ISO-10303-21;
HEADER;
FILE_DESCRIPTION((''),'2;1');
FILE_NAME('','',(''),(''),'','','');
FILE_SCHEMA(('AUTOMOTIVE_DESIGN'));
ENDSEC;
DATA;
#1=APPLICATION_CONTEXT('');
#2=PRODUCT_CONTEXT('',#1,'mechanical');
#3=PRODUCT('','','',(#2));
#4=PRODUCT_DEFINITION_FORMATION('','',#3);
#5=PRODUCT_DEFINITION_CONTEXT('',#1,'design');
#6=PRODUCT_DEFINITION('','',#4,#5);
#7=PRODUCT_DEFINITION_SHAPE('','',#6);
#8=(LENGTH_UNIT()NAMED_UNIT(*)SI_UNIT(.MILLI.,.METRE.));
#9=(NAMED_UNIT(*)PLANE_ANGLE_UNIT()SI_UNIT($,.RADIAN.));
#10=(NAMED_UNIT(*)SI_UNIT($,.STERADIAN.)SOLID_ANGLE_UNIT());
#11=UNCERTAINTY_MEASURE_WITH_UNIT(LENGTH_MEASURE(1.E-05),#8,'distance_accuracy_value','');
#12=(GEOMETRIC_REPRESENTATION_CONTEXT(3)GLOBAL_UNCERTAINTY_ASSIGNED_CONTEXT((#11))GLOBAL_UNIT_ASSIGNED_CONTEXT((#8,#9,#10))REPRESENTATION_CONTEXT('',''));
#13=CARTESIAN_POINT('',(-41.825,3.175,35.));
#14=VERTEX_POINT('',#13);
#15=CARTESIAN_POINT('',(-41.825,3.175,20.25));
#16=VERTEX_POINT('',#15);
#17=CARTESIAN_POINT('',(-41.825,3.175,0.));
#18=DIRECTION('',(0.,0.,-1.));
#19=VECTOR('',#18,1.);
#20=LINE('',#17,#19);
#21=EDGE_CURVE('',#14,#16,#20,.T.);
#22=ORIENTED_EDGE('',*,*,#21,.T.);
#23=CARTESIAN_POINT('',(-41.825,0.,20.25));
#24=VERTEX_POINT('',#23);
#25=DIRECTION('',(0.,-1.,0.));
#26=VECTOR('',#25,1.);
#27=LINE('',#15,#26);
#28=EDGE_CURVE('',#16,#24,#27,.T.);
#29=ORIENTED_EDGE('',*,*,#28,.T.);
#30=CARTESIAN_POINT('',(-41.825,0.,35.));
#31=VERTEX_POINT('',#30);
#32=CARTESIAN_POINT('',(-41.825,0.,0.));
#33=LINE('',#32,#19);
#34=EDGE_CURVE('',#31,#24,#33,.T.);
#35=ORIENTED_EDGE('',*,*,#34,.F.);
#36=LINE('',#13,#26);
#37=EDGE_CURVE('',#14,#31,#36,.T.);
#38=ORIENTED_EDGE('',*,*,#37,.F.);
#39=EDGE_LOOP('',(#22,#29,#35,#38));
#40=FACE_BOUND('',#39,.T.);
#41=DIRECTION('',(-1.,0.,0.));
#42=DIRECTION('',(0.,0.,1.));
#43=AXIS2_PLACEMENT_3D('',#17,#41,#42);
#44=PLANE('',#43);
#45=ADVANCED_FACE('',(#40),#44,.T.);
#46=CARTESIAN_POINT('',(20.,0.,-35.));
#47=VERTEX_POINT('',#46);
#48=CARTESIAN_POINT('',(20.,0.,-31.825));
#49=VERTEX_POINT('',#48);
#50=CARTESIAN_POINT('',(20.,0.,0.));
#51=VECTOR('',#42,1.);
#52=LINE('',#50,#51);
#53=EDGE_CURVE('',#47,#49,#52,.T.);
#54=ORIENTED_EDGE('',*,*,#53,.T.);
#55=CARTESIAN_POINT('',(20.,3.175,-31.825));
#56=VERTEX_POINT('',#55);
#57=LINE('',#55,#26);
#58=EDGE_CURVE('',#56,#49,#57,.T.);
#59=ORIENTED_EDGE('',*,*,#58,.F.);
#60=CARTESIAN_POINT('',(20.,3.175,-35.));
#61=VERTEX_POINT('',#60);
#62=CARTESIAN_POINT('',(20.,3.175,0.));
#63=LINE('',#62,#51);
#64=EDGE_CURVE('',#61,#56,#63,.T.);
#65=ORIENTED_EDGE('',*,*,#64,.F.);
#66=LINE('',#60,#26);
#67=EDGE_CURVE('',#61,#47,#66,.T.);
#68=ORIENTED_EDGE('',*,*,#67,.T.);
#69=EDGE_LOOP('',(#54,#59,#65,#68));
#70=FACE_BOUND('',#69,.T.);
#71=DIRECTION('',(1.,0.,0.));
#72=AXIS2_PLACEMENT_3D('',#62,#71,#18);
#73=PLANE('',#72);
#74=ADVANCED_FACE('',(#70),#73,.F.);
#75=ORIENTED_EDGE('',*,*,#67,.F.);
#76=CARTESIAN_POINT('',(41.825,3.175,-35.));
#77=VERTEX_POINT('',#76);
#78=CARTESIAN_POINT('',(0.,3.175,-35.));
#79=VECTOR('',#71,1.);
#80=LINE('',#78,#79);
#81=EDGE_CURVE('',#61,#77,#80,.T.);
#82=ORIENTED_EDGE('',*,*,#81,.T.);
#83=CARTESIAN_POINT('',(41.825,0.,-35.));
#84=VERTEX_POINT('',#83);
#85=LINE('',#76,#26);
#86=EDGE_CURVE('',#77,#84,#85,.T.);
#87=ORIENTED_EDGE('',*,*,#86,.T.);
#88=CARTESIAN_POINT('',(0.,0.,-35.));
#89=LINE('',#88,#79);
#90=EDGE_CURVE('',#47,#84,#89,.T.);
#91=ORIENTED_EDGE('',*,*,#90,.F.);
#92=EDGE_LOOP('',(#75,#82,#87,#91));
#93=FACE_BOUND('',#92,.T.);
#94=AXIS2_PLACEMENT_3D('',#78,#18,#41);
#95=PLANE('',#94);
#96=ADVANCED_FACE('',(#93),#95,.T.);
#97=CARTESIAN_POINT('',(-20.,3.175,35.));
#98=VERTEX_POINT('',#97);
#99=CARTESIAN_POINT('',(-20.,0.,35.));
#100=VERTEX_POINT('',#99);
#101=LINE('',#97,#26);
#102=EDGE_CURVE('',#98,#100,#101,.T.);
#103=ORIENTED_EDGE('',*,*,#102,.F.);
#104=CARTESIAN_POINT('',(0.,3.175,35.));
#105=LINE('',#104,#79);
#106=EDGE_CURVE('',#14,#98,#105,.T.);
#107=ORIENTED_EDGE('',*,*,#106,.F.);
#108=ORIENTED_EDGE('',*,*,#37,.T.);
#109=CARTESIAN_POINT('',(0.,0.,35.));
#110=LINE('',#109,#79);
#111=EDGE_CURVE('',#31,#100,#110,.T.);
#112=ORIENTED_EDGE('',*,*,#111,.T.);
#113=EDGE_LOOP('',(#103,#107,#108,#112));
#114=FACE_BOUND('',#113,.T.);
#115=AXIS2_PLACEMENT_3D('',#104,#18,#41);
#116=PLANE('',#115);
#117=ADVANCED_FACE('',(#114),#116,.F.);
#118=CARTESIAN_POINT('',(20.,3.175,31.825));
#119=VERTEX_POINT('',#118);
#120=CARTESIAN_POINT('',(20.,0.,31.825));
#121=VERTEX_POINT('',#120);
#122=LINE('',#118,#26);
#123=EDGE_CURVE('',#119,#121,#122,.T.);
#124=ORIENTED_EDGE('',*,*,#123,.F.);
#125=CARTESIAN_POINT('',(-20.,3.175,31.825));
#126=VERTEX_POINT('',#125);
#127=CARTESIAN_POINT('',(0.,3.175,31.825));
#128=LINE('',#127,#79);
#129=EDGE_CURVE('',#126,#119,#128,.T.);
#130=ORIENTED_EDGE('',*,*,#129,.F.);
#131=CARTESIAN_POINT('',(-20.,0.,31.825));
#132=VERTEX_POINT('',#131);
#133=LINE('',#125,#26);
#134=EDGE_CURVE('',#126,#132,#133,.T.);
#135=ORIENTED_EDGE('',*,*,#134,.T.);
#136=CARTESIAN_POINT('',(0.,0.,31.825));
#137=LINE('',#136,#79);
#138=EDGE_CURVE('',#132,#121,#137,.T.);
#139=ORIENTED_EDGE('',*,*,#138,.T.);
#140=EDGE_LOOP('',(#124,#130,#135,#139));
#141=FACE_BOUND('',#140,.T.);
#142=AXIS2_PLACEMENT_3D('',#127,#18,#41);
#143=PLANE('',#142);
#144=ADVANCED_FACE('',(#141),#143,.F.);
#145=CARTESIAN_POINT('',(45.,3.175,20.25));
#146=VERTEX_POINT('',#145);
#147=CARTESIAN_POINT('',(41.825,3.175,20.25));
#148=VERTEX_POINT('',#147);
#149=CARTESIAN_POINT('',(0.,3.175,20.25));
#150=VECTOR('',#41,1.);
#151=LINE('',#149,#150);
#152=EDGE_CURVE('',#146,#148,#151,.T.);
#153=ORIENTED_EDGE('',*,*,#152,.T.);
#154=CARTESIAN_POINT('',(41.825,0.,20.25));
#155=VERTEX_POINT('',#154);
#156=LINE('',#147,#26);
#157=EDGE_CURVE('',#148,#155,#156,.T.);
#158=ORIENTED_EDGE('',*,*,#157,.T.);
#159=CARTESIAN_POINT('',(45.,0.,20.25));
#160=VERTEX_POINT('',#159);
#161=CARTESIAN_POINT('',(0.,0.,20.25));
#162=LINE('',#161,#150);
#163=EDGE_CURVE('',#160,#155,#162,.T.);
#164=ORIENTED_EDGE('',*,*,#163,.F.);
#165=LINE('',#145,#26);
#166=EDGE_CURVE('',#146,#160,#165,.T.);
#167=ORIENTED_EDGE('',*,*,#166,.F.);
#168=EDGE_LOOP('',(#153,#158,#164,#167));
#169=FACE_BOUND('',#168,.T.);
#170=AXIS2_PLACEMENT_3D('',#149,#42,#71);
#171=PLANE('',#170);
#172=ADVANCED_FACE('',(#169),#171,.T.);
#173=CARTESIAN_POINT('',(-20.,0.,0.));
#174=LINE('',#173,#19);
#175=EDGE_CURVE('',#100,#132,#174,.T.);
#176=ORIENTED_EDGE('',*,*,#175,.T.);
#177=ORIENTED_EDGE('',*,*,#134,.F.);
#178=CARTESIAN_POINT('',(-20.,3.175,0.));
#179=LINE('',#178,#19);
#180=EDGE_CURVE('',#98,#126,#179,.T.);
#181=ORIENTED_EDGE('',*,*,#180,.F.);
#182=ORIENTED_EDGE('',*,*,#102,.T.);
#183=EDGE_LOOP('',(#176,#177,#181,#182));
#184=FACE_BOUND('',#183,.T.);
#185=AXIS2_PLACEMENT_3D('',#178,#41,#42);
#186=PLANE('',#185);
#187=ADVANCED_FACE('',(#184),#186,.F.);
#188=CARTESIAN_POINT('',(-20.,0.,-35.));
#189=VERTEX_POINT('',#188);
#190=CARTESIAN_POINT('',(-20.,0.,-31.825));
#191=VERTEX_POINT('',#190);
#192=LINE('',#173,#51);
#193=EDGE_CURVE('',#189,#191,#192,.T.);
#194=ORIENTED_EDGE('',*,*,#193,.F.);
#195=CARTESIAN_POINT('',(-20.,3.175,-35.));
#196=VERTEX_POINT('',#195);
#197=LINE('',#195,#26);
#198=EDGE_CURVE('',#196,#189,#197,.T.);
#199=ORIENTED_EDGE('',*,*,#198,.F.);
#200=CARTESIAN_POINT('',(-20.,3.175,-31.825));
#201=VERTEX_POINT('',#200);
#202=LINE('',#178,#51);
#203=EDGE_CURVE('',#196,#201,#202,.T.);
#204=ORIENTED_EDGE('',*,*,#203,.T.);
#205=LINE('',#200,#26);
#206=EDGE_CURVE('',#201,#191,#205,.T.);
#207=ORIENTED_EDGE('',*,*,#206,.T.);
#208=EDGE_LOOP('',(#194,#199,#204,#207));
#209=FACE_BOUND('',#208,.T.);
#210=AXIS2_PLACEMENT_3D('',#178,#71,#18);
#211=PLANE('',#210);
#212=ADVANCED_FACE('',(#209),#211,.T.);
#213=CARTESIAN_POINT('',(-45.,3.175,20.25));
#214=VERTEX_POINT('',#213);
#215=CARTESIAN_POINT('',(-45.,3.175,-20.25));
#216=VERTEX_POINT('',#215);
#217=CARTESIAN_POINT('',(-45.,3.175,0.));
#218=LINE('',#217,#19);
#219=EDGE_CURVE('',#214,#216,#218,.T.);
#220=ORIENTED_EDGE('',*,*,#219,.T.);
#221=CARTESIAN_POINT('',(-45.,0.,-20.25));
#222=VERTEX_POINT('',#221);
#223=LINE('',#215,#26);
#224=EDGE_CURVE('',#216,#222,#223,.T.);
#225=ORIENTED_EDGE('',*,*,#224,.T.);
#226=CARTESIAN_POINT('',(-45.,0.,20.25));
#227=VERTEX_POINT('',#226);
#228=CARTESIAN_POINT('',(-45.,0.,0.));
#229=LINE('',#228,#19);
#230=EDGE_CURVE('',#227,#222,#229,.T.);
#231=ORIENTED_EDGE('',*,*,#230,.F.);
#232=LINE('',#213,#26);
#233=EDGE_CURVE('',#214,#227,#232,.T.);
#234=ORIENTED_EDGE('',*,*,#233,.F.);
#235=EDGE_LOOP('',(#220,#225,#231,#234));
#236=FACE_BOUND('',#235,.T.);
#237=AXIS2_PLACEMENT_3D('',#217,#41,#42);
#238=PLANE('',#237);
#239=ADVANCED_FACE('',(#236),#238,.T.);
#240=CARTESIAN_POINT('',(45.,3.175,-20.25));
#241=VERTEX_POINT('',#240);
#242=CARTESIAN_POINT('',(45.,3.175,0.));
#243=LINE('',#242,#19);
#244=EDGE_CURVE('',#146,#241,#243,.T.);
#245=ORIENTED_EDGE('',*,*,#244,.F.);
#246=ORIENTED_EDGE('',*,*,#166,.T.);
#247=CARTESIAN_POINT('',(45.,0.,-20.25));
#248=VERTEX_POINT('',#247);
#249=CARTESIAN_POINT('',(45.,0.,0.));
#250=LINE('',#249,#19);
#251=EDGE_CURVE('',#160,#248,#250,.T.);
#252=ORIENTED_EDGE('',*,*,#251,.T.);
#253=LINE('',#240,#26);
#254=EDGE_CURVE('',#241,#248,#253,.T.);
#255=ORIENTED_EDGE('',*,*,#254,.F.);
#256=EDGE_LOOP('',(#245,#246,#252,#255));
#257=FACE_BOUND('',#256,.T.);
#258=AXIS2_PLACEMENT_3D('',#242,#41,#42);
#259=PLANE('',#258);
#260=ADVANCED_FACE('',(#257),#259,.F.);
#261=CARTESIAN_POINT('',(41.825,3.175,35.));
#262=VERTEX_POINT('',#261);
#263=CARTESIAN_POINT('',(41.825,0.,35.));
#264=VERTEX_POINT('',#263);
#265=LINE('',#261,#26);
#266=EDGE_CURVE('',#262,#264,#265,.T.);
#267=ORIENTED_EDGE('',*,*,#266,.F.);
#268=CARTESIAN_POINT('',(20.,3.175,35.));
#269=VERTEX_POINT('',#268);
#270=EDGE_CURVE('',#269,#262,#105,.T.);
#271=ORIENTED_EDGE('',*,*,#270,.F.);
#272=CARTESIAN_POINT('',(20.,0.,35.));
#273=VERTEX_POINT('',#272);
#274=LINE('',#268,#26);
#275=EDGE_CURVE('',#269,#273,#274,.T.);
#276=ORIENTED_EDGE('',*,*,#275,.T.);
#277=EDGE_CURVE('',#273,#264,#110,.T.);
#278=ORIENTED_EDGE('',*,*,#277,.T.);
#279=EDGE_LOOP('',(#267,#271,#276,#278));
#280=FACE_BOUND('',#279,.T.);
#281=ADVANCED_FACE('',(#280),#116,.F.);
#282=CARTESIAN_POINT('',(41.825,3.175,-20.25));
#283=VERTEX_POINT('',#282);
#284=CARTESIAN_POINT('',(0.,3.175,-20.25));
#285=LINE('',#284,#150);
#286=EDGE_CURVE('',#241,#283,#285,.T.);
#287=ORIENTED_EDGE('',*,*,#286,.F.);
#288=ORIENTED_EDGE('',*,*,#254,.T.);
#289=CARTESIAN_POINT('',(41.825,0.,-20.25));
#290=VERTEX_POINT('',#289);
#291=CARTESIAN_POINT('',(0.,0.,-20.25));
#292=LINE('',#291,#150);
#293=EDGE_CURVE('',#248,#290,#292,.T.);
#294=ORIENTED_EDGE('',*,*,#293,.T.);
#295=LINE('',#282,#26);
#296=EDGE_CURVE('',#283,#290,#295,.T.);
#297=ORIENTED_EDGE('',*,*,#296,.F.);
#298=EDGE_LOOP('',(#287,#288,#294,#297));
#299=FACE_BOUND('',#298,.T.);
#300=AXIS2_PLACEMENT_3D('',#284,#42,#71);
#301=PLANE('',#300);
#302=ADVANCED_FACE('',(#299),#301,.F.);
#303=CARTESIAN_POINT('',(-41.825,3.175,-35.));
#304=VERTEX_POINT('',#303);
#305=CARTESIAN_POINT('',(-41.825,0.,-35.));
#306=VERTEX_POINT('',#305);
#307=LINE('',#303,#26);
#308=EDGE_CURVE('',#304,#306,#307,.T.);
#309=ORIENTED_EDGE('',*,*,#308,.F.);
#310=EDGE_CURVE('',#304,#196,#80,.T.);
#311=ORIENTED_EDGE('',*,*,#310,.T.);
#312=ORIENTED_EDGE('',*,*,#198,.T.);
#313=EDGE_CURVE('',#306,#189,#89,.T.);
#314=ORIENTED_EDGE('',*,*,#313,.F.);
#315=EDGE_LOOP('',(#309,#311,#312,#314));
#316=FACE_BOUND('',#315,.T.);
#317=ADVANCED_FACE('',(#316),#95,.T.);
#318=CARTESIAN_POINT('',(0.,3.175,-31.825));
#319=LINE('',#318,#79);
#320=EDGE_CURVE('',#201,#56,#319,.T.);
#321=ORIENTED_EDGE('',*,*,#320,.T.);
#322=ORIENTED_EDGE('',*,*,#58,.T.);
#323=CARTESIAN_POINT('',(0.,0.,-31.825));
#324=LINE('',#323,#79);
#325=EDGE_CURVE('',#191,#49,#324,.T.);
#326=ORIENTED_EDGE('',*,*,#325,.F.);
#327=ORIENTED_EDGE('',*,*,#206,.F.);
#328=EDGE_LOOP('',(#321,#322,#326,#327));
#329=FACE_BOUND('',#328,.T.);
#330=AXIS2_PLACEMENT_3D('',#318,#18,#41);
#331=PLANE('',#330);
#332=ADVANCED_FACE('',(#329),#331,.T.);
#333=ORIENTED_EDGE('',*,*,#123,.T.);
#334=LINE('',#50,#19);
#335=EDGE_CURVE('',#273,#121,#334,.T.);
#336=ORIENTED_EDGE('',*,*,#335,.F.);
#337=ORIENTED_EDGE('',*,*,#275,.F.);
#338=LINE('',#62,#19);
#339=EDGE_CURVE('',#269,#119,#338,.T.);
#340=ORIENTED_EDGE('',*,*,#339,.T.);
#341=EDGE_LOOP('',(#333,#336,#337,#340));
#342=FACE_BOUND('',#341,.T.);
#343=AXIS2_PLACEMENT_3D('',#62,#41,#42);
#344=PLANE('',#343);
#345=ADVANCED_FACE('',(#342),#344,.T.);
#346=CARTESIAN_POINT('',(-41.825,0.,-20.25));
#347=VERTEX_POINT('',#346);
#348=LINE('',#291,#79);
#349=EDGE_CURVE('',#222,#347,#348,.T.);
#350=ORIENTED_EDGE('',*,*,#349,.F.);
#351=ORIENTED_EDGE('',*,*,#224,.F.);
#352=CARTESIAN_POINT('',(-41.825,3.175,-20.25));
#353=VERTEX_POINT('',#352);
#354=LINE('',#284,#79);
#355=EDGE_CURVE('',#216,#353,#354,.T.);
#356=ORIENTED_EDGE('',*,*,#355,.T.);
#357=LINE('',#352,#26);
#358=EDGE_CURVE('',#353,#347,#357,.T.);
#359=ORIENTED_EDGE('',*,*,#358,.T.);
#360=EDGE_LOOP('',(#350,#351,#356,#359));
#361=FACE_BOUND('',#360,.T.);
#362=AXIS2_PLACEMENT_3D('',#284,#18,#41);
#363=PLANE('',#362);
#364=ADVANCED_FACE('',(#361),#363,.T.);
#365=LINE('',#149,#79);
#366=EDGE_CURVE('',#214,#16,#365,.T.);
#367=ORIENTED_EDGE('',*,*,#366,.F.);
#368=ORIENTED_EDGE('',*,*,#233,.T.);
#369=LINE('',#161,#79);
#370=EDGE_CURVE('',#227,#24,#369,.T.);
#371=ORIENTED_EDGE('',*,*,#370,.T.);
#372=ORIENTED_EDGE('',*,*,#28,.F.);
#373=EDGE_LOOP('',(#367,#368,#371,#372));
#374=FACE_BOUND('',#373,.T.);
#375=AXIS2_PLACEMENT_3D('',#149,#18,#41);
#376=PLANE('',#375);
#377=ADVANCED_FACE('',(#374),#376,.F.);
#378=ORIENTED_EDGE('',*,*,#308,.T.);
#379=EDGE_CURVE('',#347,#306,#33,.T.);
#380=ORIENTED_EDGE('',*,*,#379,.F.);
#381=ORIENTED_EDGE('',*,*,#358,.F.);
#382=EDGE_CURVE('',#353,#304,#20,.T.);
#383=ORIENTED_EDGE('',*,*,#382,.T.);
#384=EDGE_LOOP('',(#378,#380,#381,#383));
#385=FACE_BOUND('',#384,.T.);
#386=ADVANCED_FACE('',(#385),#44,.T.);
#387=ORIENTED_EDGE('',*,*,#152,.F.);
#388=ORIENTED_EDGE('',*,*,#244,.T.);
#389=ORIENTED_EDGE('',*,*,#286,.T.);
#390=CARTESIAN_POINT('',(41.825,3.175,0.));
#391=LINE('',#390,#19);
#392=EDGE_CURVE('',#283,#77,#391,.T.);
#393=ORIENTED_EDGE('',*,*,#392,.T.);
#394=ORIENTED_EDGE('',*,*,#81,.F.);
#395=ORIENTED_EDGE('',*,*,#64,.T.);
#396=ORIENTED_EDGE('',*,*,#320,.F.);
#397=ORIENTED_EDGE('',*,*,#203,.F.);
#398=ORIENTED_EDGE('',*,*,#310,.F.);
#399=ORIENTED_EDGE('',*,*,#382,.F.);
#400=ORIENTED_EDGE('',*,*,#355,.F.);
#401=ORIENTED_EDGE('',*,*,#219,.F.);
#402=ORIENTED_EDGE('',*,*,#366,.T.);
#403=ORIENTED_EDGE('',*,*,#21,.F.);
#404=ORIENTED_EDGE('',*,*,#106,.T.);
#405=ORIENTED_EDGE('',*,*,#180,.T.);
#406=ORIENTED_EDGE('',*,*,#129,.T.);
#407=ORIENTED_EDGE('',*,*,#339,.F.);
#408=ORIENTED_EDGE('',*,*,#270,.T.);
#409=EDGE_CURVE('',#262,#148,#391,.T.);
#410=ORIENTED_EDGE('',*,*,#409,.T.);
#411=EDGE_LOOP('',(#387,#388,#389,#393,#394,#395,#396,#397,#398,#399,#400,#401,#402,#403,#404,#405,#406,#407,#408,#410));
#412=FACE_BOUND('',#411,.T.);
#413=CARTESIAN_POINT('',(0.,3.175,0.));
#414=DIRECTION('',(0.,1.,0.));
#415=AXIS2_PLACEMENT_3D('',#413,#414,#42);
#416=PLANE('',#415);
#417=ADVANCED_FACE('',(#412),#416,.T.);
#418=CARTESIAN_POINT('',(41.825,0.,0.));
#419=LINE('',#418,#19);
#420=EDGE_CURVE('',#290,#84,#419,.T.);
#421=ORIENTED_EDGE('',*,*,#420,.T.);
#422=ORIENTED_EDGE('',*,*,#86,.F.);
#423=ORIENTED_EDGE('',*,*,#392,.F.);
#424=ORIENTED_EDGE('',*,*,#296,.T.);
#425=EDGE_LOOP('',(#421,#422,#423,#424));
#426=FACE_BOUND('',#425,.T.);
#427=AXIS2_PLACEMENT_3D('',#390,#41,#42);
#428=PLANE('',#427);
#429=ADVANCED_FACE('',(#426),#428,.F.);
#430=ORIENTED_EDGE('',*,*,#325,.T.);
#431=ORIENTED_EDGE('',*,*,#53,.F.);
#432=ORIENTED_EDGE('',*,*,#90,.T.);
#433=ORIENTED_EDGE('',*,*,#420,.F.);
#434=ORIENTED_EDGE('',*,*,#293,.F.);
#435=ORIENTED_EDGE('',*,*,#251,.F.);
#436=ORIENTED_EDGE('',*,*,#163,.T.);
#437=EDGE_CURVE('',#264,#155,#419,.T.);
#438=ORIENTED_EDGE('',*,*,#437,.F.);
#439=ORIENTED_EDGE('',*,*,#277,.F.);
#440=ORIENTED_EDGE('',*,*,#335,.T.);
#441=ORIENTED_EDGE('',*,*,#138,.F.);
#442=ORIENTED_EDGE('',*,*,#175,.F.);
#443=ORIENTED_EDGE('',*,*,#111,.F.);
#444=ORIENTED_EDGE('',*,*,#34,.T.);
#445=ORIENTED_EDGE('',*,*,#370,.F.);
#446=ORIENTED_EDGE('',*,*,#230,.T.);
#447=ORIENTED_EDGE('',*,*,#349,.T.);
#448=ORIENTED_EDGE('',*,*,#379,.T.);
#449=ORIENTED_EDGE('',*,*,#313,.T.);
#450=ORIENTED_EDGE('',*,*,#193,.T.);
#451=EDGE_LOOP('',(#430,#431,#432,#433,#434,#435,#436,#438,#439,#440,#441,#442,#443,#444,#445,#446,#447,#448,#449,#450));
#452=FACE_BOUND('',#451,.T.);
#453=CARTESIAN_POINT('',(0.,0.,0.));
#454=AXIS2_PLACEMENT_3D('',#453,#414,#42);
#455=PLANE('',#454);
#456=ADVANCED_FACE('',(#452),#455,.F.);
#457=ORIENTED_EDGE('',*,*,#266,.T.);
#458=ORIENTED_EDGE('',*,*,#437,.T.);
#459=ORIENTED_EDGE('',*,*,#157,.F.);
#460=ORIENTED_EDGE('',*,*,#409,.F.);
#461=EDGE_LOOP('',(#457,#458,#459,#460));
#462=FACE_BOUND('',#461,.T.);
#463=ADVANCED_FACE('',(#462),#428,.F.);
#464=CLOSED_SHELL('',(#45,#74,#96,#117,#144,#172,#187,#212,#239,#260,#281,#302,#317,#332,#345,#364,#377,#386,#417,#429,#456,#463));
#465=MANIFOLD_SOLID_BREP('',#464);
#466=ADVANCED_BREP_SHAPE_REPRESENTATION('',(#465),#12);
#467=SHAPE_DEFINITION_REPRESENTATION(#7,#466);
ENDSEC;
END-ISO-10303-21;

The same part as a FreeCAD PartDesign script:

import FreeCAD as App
import Part
import Sketcher
from FreeCAD import Vector

doc = App.newDocument("Part")
body = doc.addObject("PartDesign::Body", "Body")

# Sketch on XZ plane
sketch1 = doc.addObject("Sketcher::SketchObject", "Sketch")
body.addObject(sketch1)
sketch1.AttachmentSupport = (doc.XZ_Plane, [""])
sketch1.MapMode = "FlatFace"
sketch1.addGeometry([
    Part.LineSegment(Vector(-41.825, 35, 0), Vector(-20, 35, 0)),  # 0
    Part.LineSegment(Vector(-20, 35, 0), Vector(-20, 31.825, 0)),  # 1
    Part.LineSegment(Vector(-20, 31.825, 0), Vector(20, 31.825, 0)),  # 2
    Part.LineSegment(Vector(20, 31.825, 0), Vector(20, 35, 0)),  # 3
    Part.LineSegment(Vector(20, 35, 0), Vector(41.825, 35, 0)),  # 4
    Part.LineSegment(Vector(41.825, 35, 0), Vector(41.825, 20.25, 0)),  # 5
    Part.LineSegment(Vector(41.825, 20.25, 0), Vector(45, 20.25, 0)),  # 6
    Part.LineSegment(Vector(45, 20.25, 0), Vector(45, -20.25, 0)),  # 7
    Part.LineSegment(Vector(45, -20.25, 0), Vector(41.825, -20.25, 0)),  # 8
    Part.LineSegment(Vector(41.825, -20.25, 0), Vector(41.825, -35, 0)),  # 9
    Part.LineSegment(Vector(41.825, -35, 0), Vector(20, -35, 0)),  # 10
    Part.LineSegment(Vector(20, -35, 0), Vector(20, -31.825, 0)),  # 11
    Part.LineSegment(Vector(20, -31.825, 0), Vector(-20, -31.825, 0)),  # 12
    Part.LineSegment(Vector(-20, -31.825, 0), Vector(-20, -35, 0)),  # 13
    Part.LineSegment(Vector(-20, -35, 0), Vector(-41.825, -35, 0)),  # 14
    Part.LineSegment(Vector(-41.825, -35, 0), Vector(-41.825, -20.25, 0)),  # 15
    Part.LineSegment(Vector(-41.825, -20.25, 0), Vector(-45, -20.25, 0)),  # 16
    Part.LineSegment(Vector(-45, -20.25, 0), Vector(-45, 20.25, 0)),  # 17
    Part.LineSegment(Vector(-45, 20.25, 0), Vector(-41.825, 20.25, 0)),  # 18
    Part.LineSegment(Vector(-41.825, 20.25, 0), Vector(-41.825, 35, 0)),  # 19
], False)
sketch1.addConstraint([
    Sketcher.Constraint("Coincident", 0, 2, 1, 1),
    Sketcher.Constraint("Coincident", 1, 2, 2, 1),
    Sketcher.Constraint("Coincident", 2, 2, 3, 1),
    Sketcher.Constraint("Coincident", 3, 2, 4, 1),
    Sketcher.Constraint("Coincident", 4, 2, 5, 1),
    Sketcher.Constraint("Coincident", 5, 2, 6, 1),
    Sketcher.Constraint("Coincident", 6, 2, 7, 1),
    Sketcher.Constraint("Coincident", 7, 2, 8, 1),
    Sketcher.Constraint("Coincident", 8, 2, 9, 1),
    Sketcher.Constraint("Coincident", 9, 2, 10, 1),
    Sketcher.Constraint("Coincident", 10, 2, 11, 1),
    Sketcher.Constraint("Coincident", 11, 2, 12, 1),
    Sketcher.Constraint("Coincident", 12, 2, 13, 1),
    Sketcher.Constraint("Coincident", 13, 2, 14, 1),
    Sketcher.Constraint("Coincident", 14, 2, 15, 1),
    Sketcher.Constraint("Coincident", 15, 2, 16, 1),
    Sketcher.Constraint("Coincident", 16, 2, 17, 1),
    Sketcher.Constraint("Coincident", 17, 2, 18, 1),
    Sketcher.Constraint("Coincident", 18, 2, 19, 1),
    Sketcher.Constraint("Coincident", 19, 2, 0, 1),
    Sketcher.Constraint("Horizontal", 0),
    Sketcher.Constraint("Vertical", 1),
    Sketcher.Constraint("Horizontal", 2),
    Sketcher.Constraint("Vertical", 3),
    Sketcher.Constraint("Horizontal", 4),
    Sketcher.Constraint("Vertical", 5),
    Sketcher.Constraint("Horizontal", 6),
    Sketcher.Constraint("Vertical", 7),
    Sketcher.Constraint("Horizontal", 8),
    Sketcher.Constraint("Vertical", 9),
    Sketcher.Constraint("Horizontal", 10),
    Sketcher.Constraint("Vertical", 11),
    Sketcher.Constraint("Horizontal", 12),
    Sketcher.Constraint("Vertical", 13),
    Sketcher.Constraint("Horizontal", 14),
    Sketcher.Constraint("Vertical", 15),
    Sketcher.Constraint("Horizontal", 16),
    Sketcher.Constraint("Vertical", 17),
    Sketcher.Constraint("Horizontal", 18),
    Sketcher.Constraint("Vertical", 19),
    Sketcher.Constraint("Symmetric", 0, 2, 10, 2, -1, 1),
    Sketcher.Constraint("Symmetric", 2, 2, 12, 2, -1, 1),
    Sketcher.Constraint("Symmetric", 4, 2, 14, 2, -1, 1),
    Sketcher.Constraint("Symmetric", 6, 2, 16, 2, -1, 1),
    Sketcher.Constraint("Symmetric", 8, 2, 18, 2, -1, 1),
    Sketcher.Constraint("Symmetric", 0, 2, 3, 2, -2),
    Sketcher.Constraint("Symmetric", 8, 2, 15, 2, -2),
    Sketcher.Constraint("Equal", 18, 1),
    Sketcher.Constraint("DistanceX", 2, 1, 2, 2, 40.0),
    Sketcher.Constraint("DistanceY", 7, 2, 7, 1, 40.5),
    Sketcher.Constraint("DistanceY", -1, 1, 0, 2, 35.0),
    Sketcher.Constraint("DistanceX", -1, 1, 6, 2, 45.0),
    Sketcher.Constraint("DistanceX", 0, 1, 0, 2, 21.825),
])
pad1 = doc.addObject("PartDesign::Pad", "Pad")
body.addObject(pad1)
pad1.Profile = sketch1
pad1.Length = 3.175
pad1.Reversed = True

doc.recompute()
